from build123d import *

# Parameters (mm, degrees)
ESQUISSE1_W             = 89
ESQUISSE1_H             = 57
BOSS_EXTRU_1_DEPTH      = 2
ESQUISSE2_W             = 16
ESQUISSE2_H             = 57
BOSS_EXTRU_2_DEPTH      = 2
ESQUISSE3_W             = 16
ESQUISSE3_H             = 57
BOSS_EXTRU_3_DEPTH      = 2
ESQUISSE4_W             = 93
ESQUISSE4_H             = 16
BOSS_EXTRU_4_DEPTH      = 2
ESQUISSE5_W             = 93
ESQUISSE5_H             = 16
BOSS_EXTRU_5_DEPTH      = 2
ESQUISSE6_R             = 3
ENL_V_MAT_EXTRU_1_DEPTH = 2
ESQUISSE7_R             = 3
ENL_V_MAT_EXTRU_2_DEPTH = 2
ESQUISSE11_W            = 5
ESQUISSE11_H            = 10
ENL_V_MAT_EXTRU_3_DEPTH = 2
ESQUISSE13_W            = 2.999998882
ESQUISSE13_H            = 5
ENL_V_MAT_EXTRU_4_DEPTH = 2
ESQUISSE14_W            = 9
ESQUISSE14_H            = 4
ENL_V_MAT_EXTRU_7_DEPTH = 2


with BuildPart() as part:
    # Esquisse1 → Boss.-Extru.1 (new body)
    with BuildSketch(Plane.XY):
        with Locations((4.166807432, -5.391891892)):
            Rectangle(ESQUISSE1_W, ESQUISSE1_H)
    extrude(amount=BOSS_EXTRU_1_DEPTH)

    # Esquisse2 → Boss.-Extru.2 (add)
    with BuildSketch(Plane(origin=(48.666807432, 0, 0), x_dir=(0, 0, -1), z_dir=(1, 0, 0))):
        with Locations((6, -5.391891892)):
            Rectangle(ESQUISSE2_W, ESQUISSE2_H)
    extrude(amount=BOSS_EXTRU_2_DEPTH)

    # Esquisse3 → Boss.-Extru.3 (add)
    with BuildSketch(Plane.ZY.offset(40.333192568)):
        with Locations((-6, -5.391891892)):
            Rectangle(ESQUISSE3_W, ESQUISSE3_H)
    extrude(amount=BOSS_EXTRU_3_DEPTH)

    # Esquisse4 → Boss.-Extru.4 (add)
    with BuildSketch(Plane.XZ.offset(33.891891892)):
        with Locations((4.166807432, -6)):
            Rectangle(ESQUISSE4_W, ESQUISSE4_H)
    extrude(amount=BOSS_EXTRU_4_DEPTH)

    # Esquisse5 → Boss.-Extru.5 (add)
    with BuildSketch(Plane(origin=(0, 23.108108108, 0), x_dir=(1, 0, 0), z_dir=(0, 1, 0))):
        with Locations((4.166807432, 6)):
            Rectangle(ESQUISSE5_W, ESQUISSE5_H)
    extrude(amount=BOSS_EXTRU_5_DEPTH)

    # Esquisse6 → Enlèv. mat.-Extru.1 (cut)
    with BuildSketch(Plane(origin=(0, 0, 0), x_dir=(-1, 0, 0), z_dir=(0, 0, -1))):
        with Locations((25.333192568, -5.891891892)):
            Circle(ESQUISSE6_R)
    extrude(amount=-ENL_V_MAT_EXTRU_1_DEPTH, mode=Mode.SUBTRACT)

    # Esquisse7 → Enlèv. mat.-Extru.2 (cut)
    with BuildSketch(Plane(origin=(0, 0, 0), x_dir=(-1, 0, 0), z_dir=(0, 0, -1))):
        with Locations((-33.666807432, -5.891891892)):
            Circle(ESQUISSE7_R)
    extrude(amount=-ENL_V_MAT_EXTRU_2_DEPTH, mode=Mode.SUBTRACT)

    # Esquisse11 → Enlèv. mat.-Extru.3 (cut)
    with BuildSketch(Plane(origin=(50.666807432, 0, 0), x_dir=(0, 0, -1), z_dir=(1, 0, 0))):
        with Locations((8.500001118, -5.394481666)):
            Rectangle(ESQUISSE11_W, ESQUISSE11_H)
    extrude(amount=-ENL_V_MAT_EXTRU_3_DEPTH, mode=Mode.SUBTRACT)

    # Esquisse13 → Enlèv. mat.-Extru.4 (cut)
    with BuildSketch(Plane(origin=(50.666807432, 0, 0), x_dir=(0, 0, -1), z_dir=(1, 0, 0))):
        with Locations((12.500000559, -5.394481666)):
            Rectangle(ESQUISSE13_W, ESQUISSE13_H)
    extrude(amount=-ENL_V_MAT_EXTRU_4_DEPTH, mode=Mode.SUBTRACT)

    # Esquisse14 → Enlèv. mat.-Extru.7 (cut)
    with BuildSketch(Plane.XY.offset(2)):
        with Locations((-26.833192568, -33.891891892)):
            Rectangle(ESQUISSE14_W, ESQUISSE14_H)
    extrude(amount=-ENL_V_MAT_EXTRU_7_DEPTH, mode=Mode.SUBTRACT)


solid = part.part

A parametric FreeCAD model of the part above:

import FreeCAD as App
import Part
import Sketcher
Q = App.Units.Quantity


def add_polygon(sketch, points):
    """Adds a closed chain of lines whose ends are joined by coincident constraints."""
    first, n = sketch.GeometryCount, len(points)
    for a, b in zip(points, points[1:] + points[:1]):
        sketch.addGeometry(Part.LineSegment(App.Vector(*a, 0), App.Vector(*b, 0)), False)
    for i in range(n):
        sketch.addConstraint(Sketcher.Constraint("Coincident", first + i, 2, first + (i + 1) % n, 1))

doc = App.newDocument("Part")
body = doc.addObject("PartDesign::Body", "Body")

# Sketch on XY plane
sketch1 = body.newObject("Sketcher::SketchObject", "Sketch")
sketch1.AttachmentSupport = (doc.getObject("XY_Plane"), [""])
sketch1.MapMode = "FlatFace"
add_polygon(sketch1, [(-40, 23), (-40, -34), (49, -34), (49, 23)])  # lines 0-3
sketch1.addConstraint([
    Sketcher.Constraint("Vertical", 0),
    Sketcher.Constraint("Horizontal", 1),
    Sketcher.Constraint("Vertical", 2),
    Sketcher.Constraint("Horizontal", 3),
    Sketcher.Constraint("DistanceX", 1, 1, 1, 2, Q("89 mm")),
    Sketcher.Constraint("DistanceY", 0, 2, 0, 1, Q("57 mm")),
    Sketcher.Constraint("DistanceY", 0, 2, -1, 1, Q("33.891892 mm")),
    Sketcher.Constraint("DistanceX", 0, 2, -1, 1, Q("40.333193 mm")),
])
pad1 = body.newObject("PartDesign::Pad", "Pad")
pad1.Profile = sketch1
pad1.Length = 2

# Sketch on YZ plane
sketch2 = body.newObject("Sketcher::SketchObject", "Sketch001")
sketch2.AttachmentSupport = (doc.getObject("YZ_Plane"), [""])
sketch2.MapMode = "FlatFace"
sketch2.AttachmentOffset = App.Placement(App.Vector(0, 0, 48.666807), App.Rotation())
add_polygon(sketch2, [(23, 2), (-34, 2), (-34, -14), (23, -14)])  # lines 0-3
sketch2.addConstraint([
    Sketcher.Constraint("Horizontal", 0),
    Sketcher.Constraint("Vertical", 1),
    Sketcher.Constraint("Horizontal", 2),
    Sketcher.Constraint("Vertical", 3),
    Sketcher.Constraint("DistanceX", 0, 2, 0, 1, Q("57 mm")),
    Sketcher.Constraint("DistanceY", 1, 2, 1, 1, Q("16 mm")),
    Sketcher.Constraint("DistanceY", -1, 1, 0, 2, Q("2 mm")),
    Sketcher.Constraint("DistanceX", 0, 2, -1, 1, Q("33.891892 mm")),
])
pad2 = body.newObject("PartDesign::Pad", "Pad001")
pad2.Profile = sketch2
pad2.Length = 2

# Sketch on YZ plane
sketch3 = body.newObject("Sketcher::SketchObject", "Sketch002")
sketch3.AttachmentSupport = (doc.getObject("YZ_Plane"), [""])
sketch3.MapMode = "FlatFace"
sketch3.AttachmentOffset = App.Placement(App.Vector(0, 0, -40.333193), App.Rotation())
add_polygon(sketch3, [(23, -14), (-34, -14), (-34, 2), (23, 2)])  # lines 0-3
sketch3.addConstraint([
    Sketcher.Constraint("Horizontal", 0),
    Sketcher.Constraint("Vertical", 1),
    Sketcher.Constraint("Horizontal", 2),
    Sketcher.Constraint("Vertical", 3),
    Sketcher.Constraint("DistanceX", 0, 2, 0, 1, Q("57 mm")),
    Sketcher.Constraint("DistanceY", 1, 1, 1, 2, Q("16 mm")),
    Sketcher.Constraint("DistanceY", 0, 2, -1, 1, Q("14 mm")),
    Sketcher.Constraint("DistanceX", 0, 2, -1, 1, Q("33.891892 mm")),
])
pad3 = body.newObject("PartDesign::Pad", "Pad002")
pad3.Profile = sketch3
pad3.Length = 2
pad3.Reversed = True

# Sketch on XZ plane
sketch4 = body.newObject("Sketcher::SketchObject", "Sketch003")
sketch4.AttachmentSupport = (doc.getObject("XZ_Plane"), [""])
sketch4.MapMode = "FlatFace"
sketch4.AttachmentOffset = App.Placement(App.Vector(0, 0, 33.891892), App.Rotation())
add_polygon(sketch4, [(-42, 2), (-42, -14), (51, -14), (51, 2)])  # lines 0-3
sketch4.addConstraint([
    Sketcher.Constraint("Vertical", 0),
    Sketcher.Constraint("Horizontal", 1),
    Sketcher.Constraint("Vertical", 2),
    Sketcher.Constraint("Horizontal", 3),
    Sketcher.Constraint("DistanceX", 1, 1, 1, 2, Q("93 mm")),
    Sketcher.Constraint("DistanceY", 0, 2, 0, 1, Q("16 mm")),
    Sketcher.Constraint("DistanceY", 0, 2, -1, 1, Q("14 mm")),
    Sketcher.Constraint("DistanceX", 0, 2, -1, 1, Q("42.333193 mm")),
])
pad4 = body.newObject("PartDesign::Pad", "Pad003")
pad4.Profile = sketch4
pad4.Length = 2

# Sketch on XZ plane
sketch5 = body.newObject("Sketcher::SketchObject", "Sketch004")
sketch5.AttachmentSupport = (doc.getObject("XZ_Plane"), [""])
sketch5.MapMode = "FlatFace"
sketch5.AttachmentOffset = App.Placement(App.Vector(0, 0, -23.108108), App.Rotation())
add_polygon(sketch5, [(-42, -14), (-42, 2), (51, 2), (51, -14)])  # lines 0-3
sketch5.addConstraint([
    Sketcher.Constraint("Vertical", 0),
    Sketcher.Constraint("Horizontal", 1),
    Sketcher.Constraint("Vertical", 2),
    Sketcher.Constraint("Horizontal", 3),
    Sketcher.Constraint("DistanceX", 1, 1, 1, 2, Q("93 mm")),
    Sketcher.Constraint("DistanceY", 0, 1, 0, 2, Q("16 mm")),
    Sketcher.Constraint("DistanceY", -1, 1, 0, 2, Q("2 mm")),
    Sketcher.Constraint("DistanceX", 0, 2, -1, 1, Q("42.333193 mm")),
])
pad5 = body.newObject("PartDesign::Pad", "Pad004")
pad5.Profile = sketch5
pad5.Length = 2
pad5.Reversed = True

# Sketch on XY plane
sketch6 = body.newObject("Sketcher::SketchObject", "Sketch005")
sketch6.AttachmentSupport = (doc.getObject("XY_Plane"), [""])
sketch6.MapMode = "FlatFace"
sketch6.addGeometry(Part.Circle(App.Vector(-25.3, -5.9, 0), App.Vector(0, 0, 1), 3), False)
sketch6.addConstraint([
    Sketcher.Constraint("Diameter", 0, Q("6 mm")),
    Sketcher.Constraint("DistanceY", 0, 3, -1, 1, Q("5.891892 mm")),
    Sketcher.Constraint("DistanceX", 0, 3, -1, 1, Q("25.333193 mm")),
])
pocket1 = body.newObject("PartDesign::Pocket", "Pocket")
pocket1.Profile = sketch6
pocket1.Length = 2
pocket1.Reversed = True

# Sketch on XY plane
sketch7 = body.newObject("Sketcher::SketchObject", "Sketch006")
sketch7.AttachmentSupport = (doc.getObject("XY_Plane"), [""])
sketch7.MapMode = "FlatFace"
sketch7.addGeometry(Part.Circle(App.Vector(33.7, -5.9, 0), App.Vector(0, 0, 1), 3), False)
sketch7.addConstraint([
    Sketcher.Constraint("Diameter", 0, Q("6 mm")),
    Sketcher.Constraint("DistanceY", 0, 3, -1, 1, Q("5.891892 mm")),
    Sketcher.Constraint("DistanceX", -1, 1, 0, 3, Q("33.666807 mm")),
])
pocket2 = body.newObject("PartDesign::Pocket", "Pocket001")
pocket2.Profile = sketch7
pocket2.Length = 2
pocket2.Reversed = True

# Sketch on YZ plane
sketch8 = body.newObject("Sketcher::SketchObject", "Sketch007")
sketch8.AttachmentSupport = (doc.getObject("YZ_Plane"), [""])
sketch8.MapMode = "FlatFace"
sketch8.AttachmentOffset = App.Placement(App.Vector(0, 0, 50.666807), App.Rotation())
add_polygon(sketch8, [(0, -6), (-10, -6), (-10, -11), (0, -11)])  # lines 0-3
sketch8.addConstraint([
    Sketcher.Constraint("Horizontal", 0),
    Sketcher.Constraint("Vertical", 1),
    Sketcher.Constraint("Horizontal", 2),
    Sketcher.Constraint("Vertical", 3),
    Sketcher.Constraint("DistanceX", 0, 2, 0, 1, Q("10 mm")),
    Sketcher.Constraint("DistanceY", 1, 2, 1, 1, Q("5 mm")),
    Sketcher.Constraint("DistanceY", 0, 2, -1, 1, Q("6.000001 mm")),
    Sketcher.Constraint("DistanceX", 0, 2, -1, 1, Q("10.394482 mm")),
])
pocket3 = body.newObject("PartDesign::Pocket", "Pocket002")
pocket3.Profile = sketch8
pocket3.Length = 2

# Sketch on YZ plane
sketch9 = body.newObject("Sketcher::SketchObject", "Sketch008")
sketch9.AttachmentSupport = (doc.getObject("YZ_Plane"), [""])
sketch9.MapMode = "FlatFace"
sketch9.AttachmentOffset = App.Placement(App.Vector(0, 0, 50.666807), App.Rotation())
add_polygon(sketch9, [(-2.9, -11), (-7.9, -11), (-7.9, -14), (-2.9, -14)])  # lines 0-3
sketch9.addConstraint([
    Sketcher.Constraint("Horizontal", 0),
    Sketcher.Constraint("Vertical", 1),
    Sketcher.Constraint("Horizontal", 2),
    Sketcher.Constraint("Vertical", 3),
    Sketcher.Constraint("DistanceX", 0, 2, 0, 1, Q("5 mm")),
    Sketcher.Constraint("DistanceY", 1, 2, 1, 1, Q("2.999999 mm")),
    Sketcher.Constraint("DistanceY", 0, 2, -1, 1, Q("11.000001 mm")),
    Sketcher.Constraint("DistanceX", 0, 2, -1, 1, Q("7.894482 mm")),
])
pocket4 = body.newObject("PartDesign::Pocket", "Pocket003")
pocket4.Profile = sketch9
pocket4.Length = 2

# Sketch on XY plane
sketch10 = body.newObject("Sketcher::SketchObject", "Sketch009")
sketch10.AttachmentSupport = (doc.getObject("XY_Plane"), [""])
sketch10.MapMode = "FlatFace"
sketch10.AttachmentOffset = App.Placement(App.Vector(0, 0, 2), App.Rotation())
add_polygon(sketch10, [(-31.3, -31.9), (-31.3, -35.9), (-22.3, -35.9), (-22.3, -31.9)])  # lines 0-3
sketch10.addConstraint([
    Sketcher.Constraint("Vertical", 0),
    Sketcher.Constraint("Horizontal", 1),
    Sketcher.Constraint("Vertical", 2),
    Sketcher.Constraint("Horizontal", 3),
    Sketcher.Constraint("DistanceX", 1, 1, 1, 2, Q("9 mm")),
    Sketcher.Constraint("DistanceY", 0, 2, 0, 1, Q("4 mm")),
    Sketcher.Constraint("DistanceY", 0, 2, -1, 1, Q("35.891892 mm")),
    Sketcher.Constraint("DistanceX", 0, 2, -1, 1, Q("31.333193 mm")),
])
pocket5 = body.newObject("PartDesign::Pocket", "Pocket004")
pocket5.Profile = sketch10
pocket5.Length = 2

doc.recompute()
